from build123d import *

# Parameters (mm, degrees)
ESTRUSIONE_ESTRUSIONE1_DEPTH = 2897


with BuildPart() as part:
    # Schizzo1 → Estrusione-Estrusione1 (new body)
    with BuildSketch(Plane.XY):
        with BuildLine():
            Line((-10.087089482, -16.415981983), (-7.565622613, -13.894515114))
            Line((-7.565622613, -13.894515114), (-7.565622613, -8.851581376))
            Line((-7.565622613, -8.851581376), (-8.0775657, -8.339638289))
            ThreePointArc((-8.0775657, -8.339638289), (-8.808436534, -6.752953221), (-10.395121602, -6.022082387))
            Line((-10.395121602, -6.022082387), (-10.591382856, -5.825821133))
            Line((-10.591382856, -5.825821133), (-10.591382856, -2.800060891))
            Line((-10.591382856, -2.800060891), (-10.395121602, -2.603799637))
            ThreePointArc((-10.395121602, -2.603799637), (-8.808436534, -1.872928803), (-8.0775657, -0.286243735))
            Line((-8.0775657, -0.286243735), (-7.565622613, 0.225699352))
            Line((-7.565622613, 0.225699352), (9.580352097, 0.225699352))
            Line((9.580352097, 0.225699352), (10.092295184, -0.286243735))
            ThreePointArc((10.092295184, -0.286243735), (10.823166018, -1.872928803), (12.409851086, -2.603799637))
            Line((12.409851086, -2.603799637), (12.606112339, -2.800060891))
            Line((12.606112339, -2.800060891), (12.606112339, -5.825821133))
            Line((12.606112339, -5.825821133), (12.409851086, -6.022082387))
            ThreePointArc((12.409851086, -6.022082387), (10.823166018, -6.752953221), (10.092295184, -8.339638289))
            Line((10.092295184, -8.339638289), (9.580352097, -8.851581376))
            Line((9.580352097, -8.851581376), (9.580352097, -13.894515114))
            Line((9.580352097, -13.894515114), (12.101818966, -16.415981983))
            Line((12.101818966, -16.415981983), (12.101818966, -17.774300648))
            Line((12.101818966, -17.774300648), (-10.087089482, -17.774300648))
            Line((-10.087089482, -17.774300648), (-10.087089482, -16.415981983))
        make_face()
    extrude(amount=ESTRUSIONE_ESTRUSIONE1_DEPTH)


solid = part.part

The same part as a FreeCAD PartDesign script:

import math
import FreeCAD as App
import Part
import Sketcher
from FreeCAD import Vector

doc = App.newDocument("Part")
body = doc.addObject("PartDesign::Body", "Body")

sketch1 = body.newObject("Sketcher::SketchObject", "Sketch")
sketch1.AttachmentSupport = (doc.getObject("XY_Plane"), [""])
sketch1.MapMode = "FlatFace"
sketch1.addGeometry([
    Part.LineSegment(Vector(-7.57, -13.89, 0), Vector(-10.09, -16.42, 0)),
    Part.LineSegment(Vector(-10.09, -16.42, 0), Vector(-10.09, -17.77, 0)),
    Part.LineSegment(Vector(-10.09, -17.77, 0), Vector(12.1, -17.77, 0)),
    Part.LineSegment(Vector(12.1, -17.77, 0), Vector(12.1, -16.42, 0)),
    Part.LineSegment(Vector(12.1, -16.42, 0), Vector(9.58, -13.89, 0)),
    Part.LineSegment(Vector(9.58, -13.89, 0), Vector(9.58, -8.85, 0)),
    Part.LineSegment(Vector(9.58, -8.85, 0), Vector(10.09, -8.34, 0)),
    Part.ArcOfCircle(Part.Circle(Vector(12.61, -8.54, 0), Vector(0, 0, 1), 2.52), math.radians(94), math.radians(176)),
    Part.LineSegment(Vector(12.41, -6.02, 0), Vector(12.61, -5.83, 0)),
    Part.LineSegment(Vector(12.61, -5.83, 0), Vector(12.61, -2.8, 0)),
    Part.LineSegment(Vector(12.61, -2.8, 0), Vector(12.41, -2.6, 0)),
    Part.ArcOfCircle(Part.Circle(Vector(12.61, -0.09, 0), Vector(0, 0, 1), 2.52), math.radians(-176), math.radians(-94)),
    Part.LineSegment(Vector(10.09, -0.29, 0), Vector(9.58, 0.23, 0)),
    Part.LineSegment(Vector(9.58, 0.23, 0), Vector(-7.57, 0.23, 0)),
    Part.LineSegment(Vector(-7.57, 0.23, 0), Vector(-8.08, -0.29, 0)),
    Part.ArcOfCircle(Part.Circle(Vector(-10.59, -0.09, 0), Vector(0, 0, 1), 2.52), math.radians(-86), math.radians(-4)),
    Part.LineSegment(Vector(-10.4, -2.6, 0), Vector(-10.59, -2.8, 0)),
    Part.LineSegment(Vector(-10.59, -2.8, 0), Vector(-10.59, -5.83, 0)),
    Part.LineSegment(Vector(-10.59, -5.83, 0), Vector(-10.4, -6.02, 0)),
    Part.ArcOfCircle(Part.Circle(Vector(-10.59, -8.54, 0), Vector(0, 0, 1), 2.52), math.radians(4), math.radians(86)),
    Part.LineSegment(Vector(-8.08, -8.34, 0), Vector(-7.57, -8.85, 0)),
    Part.LineSegment(Vector(-7.57, -8.85, 0), Vector(-7.57, -13.89, 0)),
], False)
sketch1.addConstraint([
    Sketcher.Constraint("Coincident", 0, 2, 1, 1),
    Sketcher.Constraint("Coincident", 1, 2, 2, 1),
    Sketcher.Constraint("Coincident", 2, 2, 3, 1),
    Sketcher.Constraint("Coincident", 3, 2, 4, 1),
    Sketcher.Constraint("Coincident", 4, 2, 5, 1),
    Sketcher.Constraint("Coincident", 5, 2, 6, 1),
    Sketcher.Constraint("Coincident", 6, 2, 7, 2),
    Sketcher.Constraint("Coincident", 7, 1, 8, 1),
    Sketcher.Constraint("Coincident", 8, 2, 9, 1),
    Sketcher.Constraint("Coincident", 9, 2, 10, 1),
    Sketcher.Constraint("Coincident", 10, 2, 11, 2),
    Sketcher.Constraint("Coincident", 11, 1, 12, 1),
    Sketcher.Constraint("Coincident", 12, 2, 13, 1),
    Sketcher.Constraint("Coincident", 13, 2, 14, 1),
    Sketcher.Constraint("Coincident", 14, 2, 15, 2),
    Sketcher.Constraint("Coincident", 15, 1, 16, 1),
    Sketcher.Constraint("Coincident", 16, 2, 17, 1),
    Sketcher.Constraint("Coincident", 17, 2, 18, 1),
    Sketcher.Constraint("Coincident", 18, 2, 19, 2),
    Sketcher.Constraint("Coincident", 19, 1, 20, 1),
    Sketcher.Constraint("Coincident", 20, 2, 21, 1),
    Sketcher.Constraint("Coincident", 21, 2, 0, 1),
    Sketcher.Constraint("Vertical", 1),
    Sketcher.Constraint("Horizontal", 2),
    Sketcher.Constraint("Vertical", 3),
    Sketcher.Constraint("Vertical", 5),
    Sketcher.Constraint("Vertical", 9),
    Sketcher.Constraint("Horizontal", 13),
    Sketcher.Constraint("Vertical", 17),
    Sketcher.Constraint("Vertical", 21),
    Sketcher.Constraint("Equal", 7, 11),
    Sketcher.Constraint("Equal", 11, 15),
    Sketcher.Constraint("Equal", 15, 19),
    Sketcher.Constraint("Perpendicular", 0, 4),
    Sketcher.Constraint("Perpendicular", 4, 6),
    Sketcher.Constraint("Parallel", 6, 8),
    Sketcher.Constraint("Perpendicular", 8, 10),
    Sketcher.Constraint("Parallel", 10, 12),
    Sketcher.Constraint("Perpendicular", 12, 14),
    Sketcher.Constraint("Parallel", 14, 16),
    Sketcher.Constraint("Perpendicular", 16, 18),
    Sketcher.Constraint("Parallel", 18, 20),
    Sketcher.Constraint("Horizontal", 11, 3, 15, 3),
    Sketcher.Constraint("Horizontal", 7, 3, 19, 3),
    Sketcher.Constraint("Horizontal", 0, 2, 3, 2),
    Sketcher.Constraint("Horizontal", 11, 1, 14, 2),
    Sketcher.Constraint("Horizontal", 10, 2, 15, 1),
    Sketcher.Constraint("Horizontal", 9, 2, 16, 2),
    Sketcher.Constraint("Horizontal", 8, 2, 17, 2),
    Sketcher.Constraint("Horizontal", 7, 1, 18, 2),
    Sketcher.Constraint("Horizontal", 6, 2, 19, 1),
    Sketcher.Constraint("Horizontal", 5, 2, 20, 2),
    Sketcher.Constraint("Horizontal", 4, 2, 21, 2),
    Sketcher.Constraint("Vertical", 7, 3, 11, 3),
    Sketcher.Constraint("Vertical", 15, 3, 19, 3),
    Sketcher.Constraint("Vertical", 11, 3, 8, 2),
    Sketcher.Constraint("Vertical", 7, 1, 10, 2),
    Sketcher.Constraint("Vertical", 6, 2, 11, 1),
    Sketcher.Constraint("Vertical", 5, 2, 12, 2),
    Sketcher.Constraint("Radius", 7, 2.521467),
    Sketcher.Constraint("DistanceY", 0, 2, 15, 3, 16.326),
    Sketcher.Constraint("DistanceX", 2, 1, 2, 2, 22.188908),
    Sketcher.Constraint("DistanceY", 1, 2, 1, 1, 1.358319),
    Sketcher.Constraint("DistanceY", 9, 1, 9, 2, 3.02576),
    Sketcher.Constraint("DistanceY", 7, 3, -1, 1, 8.5359),
    Sketcher.Constraint("DistanceY", 1, 2, -1, 1, 17.774301),
    Sketcher.Constraint("DistanceY", -1, 1, 12, 2, 0.225699),
    Sketcher.Constraint("DistanceX", 0, 2, 7, 3, 22.693202),
    Sketcher.Constraint("DistanceX", 5, 2, 7, 1, 2.829499),
    Sketcher.Constraint("DistanceX", 0, 2, -1, 1, 10.087089),
])
pad1 = body.newObject("PartDesign::Pad", "Pad")
pad1.Profile = sketch1
pad1.Length = 2897

doc.recompute()
